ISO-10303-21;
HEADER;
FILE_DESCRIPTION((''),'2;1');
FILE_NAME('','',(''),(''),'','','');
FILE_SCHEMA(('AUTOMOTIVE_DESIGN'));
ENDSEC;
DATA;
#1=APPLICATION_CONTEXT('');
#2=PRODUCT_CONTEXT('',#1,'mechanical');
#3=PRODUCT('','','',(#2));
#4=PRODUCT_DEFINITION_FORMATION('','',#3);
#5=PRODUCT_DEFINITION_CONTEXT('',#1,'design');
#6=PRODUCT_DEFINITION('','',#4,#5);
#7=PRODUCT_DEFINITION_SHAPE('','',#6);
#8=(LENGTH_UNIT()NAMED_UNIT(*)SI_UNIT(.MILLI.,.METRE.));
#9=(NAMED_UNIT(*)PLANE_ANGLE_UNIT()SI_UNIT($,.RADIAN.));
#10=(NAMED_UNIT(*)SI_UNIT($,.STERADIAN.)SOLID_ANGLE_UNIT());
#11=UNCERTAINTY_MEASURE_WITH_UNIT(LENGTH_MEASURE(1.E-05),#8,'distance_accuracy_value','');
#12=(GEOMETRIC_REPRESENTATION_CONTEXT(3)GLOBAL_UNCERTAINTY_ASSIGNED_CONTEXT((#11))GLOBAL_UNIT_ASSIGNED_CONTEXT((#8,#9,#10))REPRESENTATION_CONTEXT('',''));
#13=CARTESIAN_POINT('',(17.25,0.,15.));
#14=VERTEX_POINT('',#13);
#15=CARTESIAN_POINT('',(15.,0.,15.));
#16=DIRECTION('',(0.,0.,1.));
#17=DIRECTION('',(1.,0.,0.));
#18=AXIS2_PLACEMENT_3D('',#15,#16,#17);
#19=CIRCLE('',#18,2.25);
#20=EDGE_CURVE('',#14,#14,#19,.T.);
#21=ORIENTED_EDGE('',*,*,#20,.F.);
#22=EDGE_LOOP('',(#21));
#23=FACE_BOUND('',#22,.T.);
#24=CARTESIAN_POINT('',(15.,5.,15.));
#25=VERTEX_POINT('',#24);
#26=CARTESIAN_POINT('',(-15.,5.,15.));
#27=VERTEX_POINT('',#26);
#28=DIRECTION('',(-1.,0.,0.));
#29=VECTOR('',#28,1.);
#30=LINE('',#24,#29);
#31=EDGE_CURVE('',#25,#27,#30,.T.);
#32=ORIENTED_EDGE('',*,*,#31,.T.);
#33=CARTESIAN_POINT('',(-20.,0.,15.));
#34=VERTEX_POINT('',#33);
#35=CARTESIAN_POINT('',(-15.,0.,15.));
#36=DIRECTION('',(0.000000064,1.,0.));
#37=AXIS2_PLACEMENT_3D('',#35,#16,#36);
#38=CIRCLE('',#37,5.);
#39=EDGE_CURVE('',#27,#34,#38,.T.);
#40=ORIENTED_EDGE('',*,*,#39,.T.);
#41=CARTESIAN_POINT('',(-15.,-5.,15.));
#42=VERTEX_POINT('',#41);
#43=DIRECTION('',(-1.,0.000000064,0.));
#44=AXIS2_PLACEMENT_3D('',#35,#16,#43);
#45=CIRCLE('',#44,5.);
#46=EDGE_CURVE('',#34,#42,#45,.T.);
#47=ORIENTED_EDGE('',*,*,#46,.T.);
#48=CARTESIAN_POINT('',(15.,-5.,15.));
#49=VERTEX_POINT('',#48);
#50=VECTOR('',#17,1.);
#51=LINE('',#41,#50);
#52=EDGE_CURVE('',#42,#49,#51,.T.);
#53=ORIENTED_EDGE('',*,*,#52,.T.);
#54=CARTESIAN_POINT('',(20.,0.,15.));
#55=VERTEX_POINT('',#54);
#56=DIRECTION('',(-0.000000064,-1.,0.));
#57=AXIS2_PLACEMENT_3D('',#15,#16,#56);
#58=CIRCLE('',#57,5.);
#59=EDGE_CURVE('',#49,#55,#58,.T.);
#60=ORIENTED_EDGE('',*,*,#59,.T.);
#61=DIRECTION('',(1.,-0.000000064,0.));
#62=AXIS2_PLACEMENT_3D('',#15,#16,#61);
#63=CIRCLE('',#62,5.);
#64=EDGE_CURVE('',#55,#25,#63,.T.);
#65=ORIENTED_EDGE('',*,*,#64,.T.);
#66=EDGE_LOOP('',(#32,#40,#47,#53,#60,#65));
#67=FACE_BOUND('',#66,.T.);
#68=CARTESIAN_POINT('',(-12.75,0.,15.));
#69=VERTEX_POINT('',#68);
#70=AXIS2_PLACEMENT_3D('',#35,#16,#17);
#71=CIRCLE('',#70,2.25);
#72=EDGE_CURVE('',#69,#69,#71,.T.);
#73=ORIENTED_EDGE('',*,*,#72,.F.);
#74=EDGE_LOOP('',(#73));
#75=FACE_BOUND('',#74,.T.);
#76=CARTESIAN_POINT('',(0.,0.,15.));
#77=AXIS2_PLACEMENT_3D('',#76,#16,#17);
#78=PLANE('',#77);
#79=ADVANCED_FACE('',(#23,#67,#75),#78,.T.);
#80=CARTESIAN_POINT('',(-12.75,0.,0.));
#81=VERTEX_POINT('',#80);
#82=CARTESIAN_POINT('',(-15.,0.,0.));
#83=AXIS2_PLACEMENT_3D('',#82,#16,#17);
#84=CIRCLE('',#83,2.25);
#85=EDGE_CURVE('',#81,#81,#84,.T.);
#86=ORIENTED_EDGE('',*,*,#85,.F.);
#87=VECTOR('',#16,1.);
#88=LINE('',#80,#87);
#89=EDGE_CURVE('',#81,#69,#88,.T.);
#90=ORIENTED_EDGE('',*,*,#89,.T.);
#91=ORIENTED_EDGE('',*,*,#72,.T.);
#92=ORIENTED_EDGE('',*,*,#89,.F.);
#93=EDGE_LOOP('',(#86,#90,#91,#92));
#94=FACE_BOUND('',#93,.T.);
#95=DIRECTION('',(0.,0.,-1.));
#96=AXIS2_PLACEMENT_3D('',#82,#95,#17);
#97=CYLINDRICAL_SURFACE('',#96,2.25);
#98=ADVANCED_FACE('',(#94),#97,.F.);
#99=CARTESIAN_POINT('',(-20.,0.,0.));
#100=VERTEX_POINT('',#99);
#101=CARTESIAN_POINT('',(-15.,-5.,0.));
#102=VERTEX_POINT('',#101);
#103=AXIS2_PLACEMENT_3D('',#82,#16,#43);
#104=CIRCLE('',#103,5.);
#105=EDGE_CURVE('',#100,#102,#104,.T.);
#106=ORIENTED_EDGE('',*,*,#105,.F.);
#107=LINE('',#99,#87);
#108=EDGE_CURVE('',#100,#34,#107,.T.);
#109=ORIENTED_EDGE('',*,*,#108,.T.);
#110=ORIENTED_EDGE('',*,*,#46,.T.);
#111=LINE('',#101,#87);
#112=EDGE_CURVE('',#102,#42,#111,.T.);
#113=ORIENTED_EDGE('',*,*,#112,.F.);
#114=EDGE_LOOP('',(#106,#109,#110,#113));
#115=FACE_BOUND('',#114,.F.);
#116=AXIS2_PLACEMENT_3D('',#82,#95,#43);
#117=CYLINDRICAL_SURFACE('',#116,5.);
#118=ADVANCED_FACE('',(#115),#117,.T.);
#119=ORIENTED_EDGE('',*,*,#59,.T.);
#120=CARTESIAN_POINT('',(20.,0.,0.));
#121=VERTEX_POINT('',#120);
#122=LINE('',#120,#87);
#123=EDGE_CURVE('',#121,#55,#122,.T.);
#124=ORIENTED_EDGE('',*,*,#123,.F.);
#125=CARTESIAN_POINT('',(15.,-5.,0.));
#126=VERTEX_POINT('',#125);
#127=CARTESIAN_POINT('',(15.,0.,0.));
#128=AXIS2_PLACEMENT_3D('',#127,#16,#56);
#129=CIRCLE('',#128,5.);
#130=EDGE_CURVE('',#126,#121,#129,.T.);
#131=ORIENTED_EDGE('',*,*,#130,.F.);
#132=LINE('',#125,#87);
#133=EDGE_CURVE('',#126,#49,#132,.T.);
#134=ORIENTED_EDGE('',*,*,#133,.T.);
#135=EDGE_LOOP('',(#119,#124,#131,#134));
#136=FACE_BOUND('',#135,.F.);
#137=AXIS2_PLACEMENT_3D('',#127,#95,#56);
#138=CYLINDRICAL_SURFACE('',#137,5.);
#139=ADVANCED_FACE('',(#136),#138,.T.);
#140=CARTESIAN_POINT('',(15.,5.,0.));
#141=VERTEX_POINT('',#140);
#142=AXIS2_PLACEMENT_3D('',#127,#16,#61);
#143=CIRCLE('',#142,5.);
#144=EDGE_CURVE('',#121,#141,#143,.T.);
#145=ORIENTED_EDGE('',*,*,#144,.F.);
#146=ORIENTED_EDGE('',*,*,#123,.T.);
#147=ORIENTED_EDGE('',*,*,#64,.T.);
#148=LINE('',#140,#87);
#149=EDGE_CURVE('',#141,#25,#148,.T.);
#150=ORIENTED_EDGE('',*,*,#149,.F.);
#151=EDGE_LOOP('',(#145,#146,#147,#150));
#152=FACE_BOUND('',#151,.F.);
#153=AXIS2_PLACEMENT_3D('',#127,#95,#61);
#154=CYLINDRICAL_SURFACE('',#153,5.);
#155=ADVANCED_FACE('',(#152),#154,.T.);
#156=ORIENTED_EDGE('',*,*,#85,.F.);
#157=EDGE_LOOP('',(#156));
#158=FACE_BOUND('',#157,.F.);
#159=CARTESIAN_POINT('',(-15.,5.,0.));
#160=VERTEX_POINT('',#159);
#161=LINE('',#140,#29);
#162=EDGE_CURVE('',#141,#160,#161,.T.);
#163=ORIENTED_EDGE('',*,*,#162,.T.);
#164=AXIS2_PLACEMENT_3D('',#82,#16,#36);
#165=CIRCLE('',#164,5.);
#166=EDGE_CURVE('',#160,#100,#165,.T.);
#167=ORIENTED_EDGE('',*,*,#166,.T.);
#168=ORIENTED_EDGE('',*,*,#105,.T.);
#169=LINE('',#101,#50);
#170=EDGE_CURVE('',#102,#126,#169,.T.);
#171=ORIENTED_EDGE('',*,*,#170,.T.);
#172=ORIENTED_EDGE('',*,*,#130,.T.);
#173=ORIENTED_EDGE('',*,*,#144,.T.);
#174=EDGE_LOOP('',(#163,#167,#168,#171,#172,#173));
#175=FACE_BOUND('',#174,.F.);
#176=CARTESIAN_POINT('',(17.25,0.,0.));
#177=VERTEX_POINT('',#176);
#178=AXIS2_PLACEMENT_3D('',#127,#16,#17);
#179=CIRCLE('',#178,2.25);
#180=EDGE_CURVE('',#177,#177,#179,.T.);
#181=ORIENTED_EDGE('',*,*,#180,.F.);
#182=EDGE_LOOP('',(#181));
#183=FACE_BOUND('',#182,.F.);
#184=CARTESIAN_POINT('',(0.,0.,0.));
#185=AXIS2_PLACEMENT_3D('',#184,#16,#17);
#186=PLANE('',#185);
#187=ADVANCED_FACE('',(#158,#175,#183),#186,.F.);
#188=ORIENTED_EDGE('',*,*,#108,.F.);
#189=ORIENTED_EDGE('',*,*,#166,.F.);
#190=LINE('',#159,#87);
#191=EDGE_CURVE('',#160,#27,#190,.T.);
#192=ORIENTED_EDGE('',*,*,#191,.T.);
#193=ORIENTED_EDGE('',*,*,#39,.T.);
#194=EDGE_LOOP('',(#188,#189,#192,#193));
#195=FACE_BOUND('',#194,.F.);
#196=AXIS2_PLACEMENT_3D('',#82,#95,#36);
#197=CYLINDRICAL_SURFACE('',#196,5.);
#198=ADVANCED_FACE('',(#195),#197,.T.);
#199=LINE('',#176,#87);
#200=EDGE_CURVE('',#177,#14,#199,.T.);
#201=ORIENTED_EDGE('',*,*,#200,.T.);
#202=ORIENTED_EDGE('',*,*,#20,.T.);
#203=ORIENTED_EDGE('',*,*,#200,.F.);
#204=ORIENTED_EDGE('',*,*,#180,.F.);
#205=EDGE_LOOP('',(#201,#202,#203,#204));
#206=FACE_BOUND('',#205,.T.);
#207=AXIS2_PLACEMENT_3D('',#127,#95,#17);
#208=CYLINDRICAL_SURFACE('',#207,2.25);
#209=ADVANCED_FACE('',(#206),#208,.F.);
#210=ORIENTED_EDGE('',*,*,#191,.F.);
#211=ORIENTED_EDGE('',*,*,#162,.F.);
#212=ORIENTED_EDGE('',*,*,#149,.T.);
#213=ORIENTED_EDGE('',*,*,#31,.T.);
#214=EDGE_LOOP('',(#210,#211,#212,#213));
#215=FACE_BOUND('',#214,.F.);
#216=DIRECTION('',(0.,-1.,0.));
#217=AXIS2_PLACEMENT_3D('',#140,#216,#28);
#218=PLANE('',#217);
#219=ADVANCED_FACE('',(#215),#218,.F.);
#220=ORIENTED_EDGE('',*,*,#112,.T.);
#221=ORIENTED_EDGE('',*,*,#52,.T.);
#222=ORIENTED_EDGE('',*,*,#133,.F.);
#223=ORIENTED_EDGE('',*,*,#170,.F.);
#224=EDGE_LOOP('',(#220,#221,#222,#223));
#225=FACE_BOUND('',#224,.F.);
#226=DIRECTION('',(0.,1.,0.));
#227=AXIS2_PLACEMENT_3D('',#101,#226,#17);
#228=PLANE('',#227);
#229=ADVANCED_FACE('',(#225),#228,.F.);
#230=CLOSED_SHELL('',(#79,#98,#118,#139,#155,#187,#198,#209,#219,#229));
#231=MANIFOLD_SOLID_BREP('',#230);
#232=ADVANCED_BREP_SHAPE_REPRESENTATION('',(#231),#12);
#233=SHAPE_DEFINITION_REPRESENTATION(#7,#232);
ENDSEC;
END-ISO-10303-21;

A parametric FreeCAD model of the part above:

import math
import FreeCAD as App
import Part
import Sketcher

doc = App.newDocument("Part")
body = doc.addObject("PartDesign::Body", "Body")

# Sketch on XY plane
sketch1 = body.newObject("Sketcher::SketchObject", "Sketch")
sketch1.AttachmentSupport = (doc.getObject("XY_Plane"), [""])
sketch1.MapMode = "FlatFace"
sketch1.addGeometry([
    Part.ArcOfCircle(Part.Circle(App.Vector(15, 0, 0), App.Vector(0, 0, 1), 5), math.radians(-0.000004), math.radians(90.000004)),  # 0
    Part.LineSegment(App.Vector(15, 5, 0), App.Vector(-15, 5, 0)),  # 1
    Part.ArcOfCircle(Part.Circle(App.Vector(-15, 0, 0), App.Vector(0, 0, 1), 5), math.radians(89.999996), math.radians(180.000004)),  # 2
    Part.ArcOfCircle(Part.Circle(App.Vector(-15, 0, 0), App.Vector(0, 0, 1), 5), math.radians(179.999996), math.radians(270.000004)),  # 3
    Part.LineSegment(App.Vector(-15, -5, 0), App.Vector(15, -5, 0)),  # 4
    Part.ArcOfCircle(Part.Circle(App.Vector(15, 0, 0), App.Vector(0, 0, 1), 5), math.radians(-90.000004), math.radians(0.000004)),  # 5
    Part.Circle(App.Vector(-15, 0, 0), App.Vector(0, 0, 1), 2.25),  # 6
    Part.Circle(App.Vector(15, 0, 0), App.Vector(0, 0, 1), 2.25),  # 7
], False)
sketch1.addConstraint([
    Sketcher.Constraint("Tangent", 0, 2, 1, 1),
    Sketcher.Constraint("Tangent", 1, 2, 2, 1),
    Sketcher.Constraint("Tangent", 2, 2, 3, 1),
    Sketcher.Constraint("Tangent", 3, 2, 4, 1),
    Sketcher.Constraint("Tangent", 4, 2, 5, 1),
    Sketcher.Constraint("Tangent", 5, 2, 0, 1),
    Sketcher.Constraint("Horizontal", 1),
    Sketcher.Constraint("Horizontal", 4),
    Sketcher.Constraint("Coincident", 6, 3, 2, 3),
    Sketcher.Constraint("Coincident", 7, 3, 0, 3),
    Sketcher.Constraint("Equal", 0, 2),
    Sketcher.Constraint("Equal", 2, 3),
    Sketcher.Constraint("Equal", 6, 7),
    Sketcher.Constraint("Symmetric", 0, 3, 2, 3, -1, 1),
    Sketcher.Constraint("PointOnObject", 2, 2, -1),
    Sketcher.Constraint("PointOnObject", 5, 2, -1),
    Sketcher.Constraint("Radius", 0, 5.0),
    Sketcher.Constraint("Diameter", 6, 4.5),
    Sketcher.Constraint("DistanceX", 1, 2, 1, 1, 30.0),
])
pad1 = body.newObject("PartDesign::Pad", "Pad")
pad1.Profile = sketch1
pad1.Length = 15

doc.recompute()
